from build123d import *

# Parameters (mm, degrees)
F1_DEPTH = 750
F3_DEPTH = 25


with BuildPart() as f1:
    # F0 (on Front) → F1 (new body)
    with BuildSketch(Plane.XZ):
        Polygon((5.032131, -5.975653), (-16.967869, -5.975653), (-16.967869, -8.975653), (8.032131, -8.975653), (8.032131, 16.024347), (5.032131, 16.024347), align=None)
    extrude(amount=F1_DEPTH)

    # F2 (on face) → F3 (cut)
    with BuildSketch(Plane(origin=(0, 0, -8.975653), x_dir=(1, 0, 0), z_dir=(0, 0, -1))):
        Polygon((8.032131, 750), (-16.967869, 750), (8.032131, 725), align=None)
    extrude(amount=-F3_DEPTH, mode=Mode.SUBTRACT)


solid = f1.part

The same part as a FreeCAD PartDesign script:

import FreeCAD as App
import Part
import Sketcher

V = App.Vector


def add_polygon(sketch, points):
    """Adds a closed chain of lines whose ends are joined by coincident constraints."""
    first, n = sketch.GeometryCount, len(points)
    for a, b in zip(points, points[1:] + points[:1]):
        sketch.addGeometry(Part.LineSegment(App.Vector(*a, 0), App.Vector(*b, 0)), False)
    for i in range(n):
        sketch.addConstraint(Sketcher.Constraint("Coincident", first + i, 2, first + (i + 1) % n, 1))

doc = App.newDocument("Part")
body = doc.addObject("PartDesign::Body", "Body")

# Sketch on XZ plane
sketch1 = doc.addObject("Sketcher::SketchObject", "Sketch")
body.addObject(sketch1)
sketch1.AttachmentSupport = (doc.XZ_Plane, [""])
sketch1.MapMode = "FlatFace"
add_polygon(sketch1, [(5, -6), (-17, -6), (-17, -9), (8, -9), (8, 16), (5, 16)])  # lines 0-5
sketch1.addConstraint([
    Sketcher.Constraint("Horizontal", 0),
    Sketcher.Constraint("Vertical", 1),
    Sketcher.Constraint("Horizontal", 2),
    Sketcher.Constraint("Vertical", 3),
    Sketcher.Constraint("Horizontal", 4),
    Sketcher.Constraint("Vertical", 5),
    Sketcher.Constraint("Equal", 4, 1),
    Sketcher.Constraint("Equal", 2, 3),
    Sketcher.Constraint("DistanceX", 0, 2, 0, 1, 22.0),
    Sketcher.Constraint("DistanceX", 2, 1, 2, 2, 25.0),
    Sketcher.Constraint("DistanceX", 0, 2, -1, 1, 16.967869),
    Sketcher.Constraint("DistanceY", 0, 2, -1, 1, 5.975653),
])
pad1 = doc.addObject("PartDesign::Pad", "Pad")
body.addObject(pad1)
pad1.Profile = sketch1
pad1.Length = 750

# Sketch on XY plane
sketch2 = doc.addObject("Sketcher::SketchObject", "Sketch001")
body.addObject(sketch2)
sketch2.AttachmentSupport = (doc.XY_Plane, [""])
sketch2.MapMode = "FlatFace"
sketch2.AttachmentOffset = App.Placement(V(0, 0, -8.975653), App.Rotation())
add_polygon(sketch2, [(8, -750), (-17, -750), (8, -725)])  # lines 0-2
sketch2.addConstraint([
    Sketcher.Constraint("Horizontal", 0),
    Sketcher.Constraint("Vertical", 2),
    Sketcher.Constraint("Equal", 0, 2),
    Sketcher.Constraint("DistanceX", 0, 2, 0, 1, 25.0),
    Sketcher.Constraint("DistanceY", 0, 2, -1, 1, 750.0),
    Sketcher.Constraint("DistanceX", 0, 2, -1, 1, 16.967869),
])
pocket1 = doc.addObject("PartDesign::Pocket", "Pocket")
body.addObject(pocket1)
pocket1.Profile = sketch2
pocket1.Length = 25
pocket1.Reversed = True

doc.recompute()
